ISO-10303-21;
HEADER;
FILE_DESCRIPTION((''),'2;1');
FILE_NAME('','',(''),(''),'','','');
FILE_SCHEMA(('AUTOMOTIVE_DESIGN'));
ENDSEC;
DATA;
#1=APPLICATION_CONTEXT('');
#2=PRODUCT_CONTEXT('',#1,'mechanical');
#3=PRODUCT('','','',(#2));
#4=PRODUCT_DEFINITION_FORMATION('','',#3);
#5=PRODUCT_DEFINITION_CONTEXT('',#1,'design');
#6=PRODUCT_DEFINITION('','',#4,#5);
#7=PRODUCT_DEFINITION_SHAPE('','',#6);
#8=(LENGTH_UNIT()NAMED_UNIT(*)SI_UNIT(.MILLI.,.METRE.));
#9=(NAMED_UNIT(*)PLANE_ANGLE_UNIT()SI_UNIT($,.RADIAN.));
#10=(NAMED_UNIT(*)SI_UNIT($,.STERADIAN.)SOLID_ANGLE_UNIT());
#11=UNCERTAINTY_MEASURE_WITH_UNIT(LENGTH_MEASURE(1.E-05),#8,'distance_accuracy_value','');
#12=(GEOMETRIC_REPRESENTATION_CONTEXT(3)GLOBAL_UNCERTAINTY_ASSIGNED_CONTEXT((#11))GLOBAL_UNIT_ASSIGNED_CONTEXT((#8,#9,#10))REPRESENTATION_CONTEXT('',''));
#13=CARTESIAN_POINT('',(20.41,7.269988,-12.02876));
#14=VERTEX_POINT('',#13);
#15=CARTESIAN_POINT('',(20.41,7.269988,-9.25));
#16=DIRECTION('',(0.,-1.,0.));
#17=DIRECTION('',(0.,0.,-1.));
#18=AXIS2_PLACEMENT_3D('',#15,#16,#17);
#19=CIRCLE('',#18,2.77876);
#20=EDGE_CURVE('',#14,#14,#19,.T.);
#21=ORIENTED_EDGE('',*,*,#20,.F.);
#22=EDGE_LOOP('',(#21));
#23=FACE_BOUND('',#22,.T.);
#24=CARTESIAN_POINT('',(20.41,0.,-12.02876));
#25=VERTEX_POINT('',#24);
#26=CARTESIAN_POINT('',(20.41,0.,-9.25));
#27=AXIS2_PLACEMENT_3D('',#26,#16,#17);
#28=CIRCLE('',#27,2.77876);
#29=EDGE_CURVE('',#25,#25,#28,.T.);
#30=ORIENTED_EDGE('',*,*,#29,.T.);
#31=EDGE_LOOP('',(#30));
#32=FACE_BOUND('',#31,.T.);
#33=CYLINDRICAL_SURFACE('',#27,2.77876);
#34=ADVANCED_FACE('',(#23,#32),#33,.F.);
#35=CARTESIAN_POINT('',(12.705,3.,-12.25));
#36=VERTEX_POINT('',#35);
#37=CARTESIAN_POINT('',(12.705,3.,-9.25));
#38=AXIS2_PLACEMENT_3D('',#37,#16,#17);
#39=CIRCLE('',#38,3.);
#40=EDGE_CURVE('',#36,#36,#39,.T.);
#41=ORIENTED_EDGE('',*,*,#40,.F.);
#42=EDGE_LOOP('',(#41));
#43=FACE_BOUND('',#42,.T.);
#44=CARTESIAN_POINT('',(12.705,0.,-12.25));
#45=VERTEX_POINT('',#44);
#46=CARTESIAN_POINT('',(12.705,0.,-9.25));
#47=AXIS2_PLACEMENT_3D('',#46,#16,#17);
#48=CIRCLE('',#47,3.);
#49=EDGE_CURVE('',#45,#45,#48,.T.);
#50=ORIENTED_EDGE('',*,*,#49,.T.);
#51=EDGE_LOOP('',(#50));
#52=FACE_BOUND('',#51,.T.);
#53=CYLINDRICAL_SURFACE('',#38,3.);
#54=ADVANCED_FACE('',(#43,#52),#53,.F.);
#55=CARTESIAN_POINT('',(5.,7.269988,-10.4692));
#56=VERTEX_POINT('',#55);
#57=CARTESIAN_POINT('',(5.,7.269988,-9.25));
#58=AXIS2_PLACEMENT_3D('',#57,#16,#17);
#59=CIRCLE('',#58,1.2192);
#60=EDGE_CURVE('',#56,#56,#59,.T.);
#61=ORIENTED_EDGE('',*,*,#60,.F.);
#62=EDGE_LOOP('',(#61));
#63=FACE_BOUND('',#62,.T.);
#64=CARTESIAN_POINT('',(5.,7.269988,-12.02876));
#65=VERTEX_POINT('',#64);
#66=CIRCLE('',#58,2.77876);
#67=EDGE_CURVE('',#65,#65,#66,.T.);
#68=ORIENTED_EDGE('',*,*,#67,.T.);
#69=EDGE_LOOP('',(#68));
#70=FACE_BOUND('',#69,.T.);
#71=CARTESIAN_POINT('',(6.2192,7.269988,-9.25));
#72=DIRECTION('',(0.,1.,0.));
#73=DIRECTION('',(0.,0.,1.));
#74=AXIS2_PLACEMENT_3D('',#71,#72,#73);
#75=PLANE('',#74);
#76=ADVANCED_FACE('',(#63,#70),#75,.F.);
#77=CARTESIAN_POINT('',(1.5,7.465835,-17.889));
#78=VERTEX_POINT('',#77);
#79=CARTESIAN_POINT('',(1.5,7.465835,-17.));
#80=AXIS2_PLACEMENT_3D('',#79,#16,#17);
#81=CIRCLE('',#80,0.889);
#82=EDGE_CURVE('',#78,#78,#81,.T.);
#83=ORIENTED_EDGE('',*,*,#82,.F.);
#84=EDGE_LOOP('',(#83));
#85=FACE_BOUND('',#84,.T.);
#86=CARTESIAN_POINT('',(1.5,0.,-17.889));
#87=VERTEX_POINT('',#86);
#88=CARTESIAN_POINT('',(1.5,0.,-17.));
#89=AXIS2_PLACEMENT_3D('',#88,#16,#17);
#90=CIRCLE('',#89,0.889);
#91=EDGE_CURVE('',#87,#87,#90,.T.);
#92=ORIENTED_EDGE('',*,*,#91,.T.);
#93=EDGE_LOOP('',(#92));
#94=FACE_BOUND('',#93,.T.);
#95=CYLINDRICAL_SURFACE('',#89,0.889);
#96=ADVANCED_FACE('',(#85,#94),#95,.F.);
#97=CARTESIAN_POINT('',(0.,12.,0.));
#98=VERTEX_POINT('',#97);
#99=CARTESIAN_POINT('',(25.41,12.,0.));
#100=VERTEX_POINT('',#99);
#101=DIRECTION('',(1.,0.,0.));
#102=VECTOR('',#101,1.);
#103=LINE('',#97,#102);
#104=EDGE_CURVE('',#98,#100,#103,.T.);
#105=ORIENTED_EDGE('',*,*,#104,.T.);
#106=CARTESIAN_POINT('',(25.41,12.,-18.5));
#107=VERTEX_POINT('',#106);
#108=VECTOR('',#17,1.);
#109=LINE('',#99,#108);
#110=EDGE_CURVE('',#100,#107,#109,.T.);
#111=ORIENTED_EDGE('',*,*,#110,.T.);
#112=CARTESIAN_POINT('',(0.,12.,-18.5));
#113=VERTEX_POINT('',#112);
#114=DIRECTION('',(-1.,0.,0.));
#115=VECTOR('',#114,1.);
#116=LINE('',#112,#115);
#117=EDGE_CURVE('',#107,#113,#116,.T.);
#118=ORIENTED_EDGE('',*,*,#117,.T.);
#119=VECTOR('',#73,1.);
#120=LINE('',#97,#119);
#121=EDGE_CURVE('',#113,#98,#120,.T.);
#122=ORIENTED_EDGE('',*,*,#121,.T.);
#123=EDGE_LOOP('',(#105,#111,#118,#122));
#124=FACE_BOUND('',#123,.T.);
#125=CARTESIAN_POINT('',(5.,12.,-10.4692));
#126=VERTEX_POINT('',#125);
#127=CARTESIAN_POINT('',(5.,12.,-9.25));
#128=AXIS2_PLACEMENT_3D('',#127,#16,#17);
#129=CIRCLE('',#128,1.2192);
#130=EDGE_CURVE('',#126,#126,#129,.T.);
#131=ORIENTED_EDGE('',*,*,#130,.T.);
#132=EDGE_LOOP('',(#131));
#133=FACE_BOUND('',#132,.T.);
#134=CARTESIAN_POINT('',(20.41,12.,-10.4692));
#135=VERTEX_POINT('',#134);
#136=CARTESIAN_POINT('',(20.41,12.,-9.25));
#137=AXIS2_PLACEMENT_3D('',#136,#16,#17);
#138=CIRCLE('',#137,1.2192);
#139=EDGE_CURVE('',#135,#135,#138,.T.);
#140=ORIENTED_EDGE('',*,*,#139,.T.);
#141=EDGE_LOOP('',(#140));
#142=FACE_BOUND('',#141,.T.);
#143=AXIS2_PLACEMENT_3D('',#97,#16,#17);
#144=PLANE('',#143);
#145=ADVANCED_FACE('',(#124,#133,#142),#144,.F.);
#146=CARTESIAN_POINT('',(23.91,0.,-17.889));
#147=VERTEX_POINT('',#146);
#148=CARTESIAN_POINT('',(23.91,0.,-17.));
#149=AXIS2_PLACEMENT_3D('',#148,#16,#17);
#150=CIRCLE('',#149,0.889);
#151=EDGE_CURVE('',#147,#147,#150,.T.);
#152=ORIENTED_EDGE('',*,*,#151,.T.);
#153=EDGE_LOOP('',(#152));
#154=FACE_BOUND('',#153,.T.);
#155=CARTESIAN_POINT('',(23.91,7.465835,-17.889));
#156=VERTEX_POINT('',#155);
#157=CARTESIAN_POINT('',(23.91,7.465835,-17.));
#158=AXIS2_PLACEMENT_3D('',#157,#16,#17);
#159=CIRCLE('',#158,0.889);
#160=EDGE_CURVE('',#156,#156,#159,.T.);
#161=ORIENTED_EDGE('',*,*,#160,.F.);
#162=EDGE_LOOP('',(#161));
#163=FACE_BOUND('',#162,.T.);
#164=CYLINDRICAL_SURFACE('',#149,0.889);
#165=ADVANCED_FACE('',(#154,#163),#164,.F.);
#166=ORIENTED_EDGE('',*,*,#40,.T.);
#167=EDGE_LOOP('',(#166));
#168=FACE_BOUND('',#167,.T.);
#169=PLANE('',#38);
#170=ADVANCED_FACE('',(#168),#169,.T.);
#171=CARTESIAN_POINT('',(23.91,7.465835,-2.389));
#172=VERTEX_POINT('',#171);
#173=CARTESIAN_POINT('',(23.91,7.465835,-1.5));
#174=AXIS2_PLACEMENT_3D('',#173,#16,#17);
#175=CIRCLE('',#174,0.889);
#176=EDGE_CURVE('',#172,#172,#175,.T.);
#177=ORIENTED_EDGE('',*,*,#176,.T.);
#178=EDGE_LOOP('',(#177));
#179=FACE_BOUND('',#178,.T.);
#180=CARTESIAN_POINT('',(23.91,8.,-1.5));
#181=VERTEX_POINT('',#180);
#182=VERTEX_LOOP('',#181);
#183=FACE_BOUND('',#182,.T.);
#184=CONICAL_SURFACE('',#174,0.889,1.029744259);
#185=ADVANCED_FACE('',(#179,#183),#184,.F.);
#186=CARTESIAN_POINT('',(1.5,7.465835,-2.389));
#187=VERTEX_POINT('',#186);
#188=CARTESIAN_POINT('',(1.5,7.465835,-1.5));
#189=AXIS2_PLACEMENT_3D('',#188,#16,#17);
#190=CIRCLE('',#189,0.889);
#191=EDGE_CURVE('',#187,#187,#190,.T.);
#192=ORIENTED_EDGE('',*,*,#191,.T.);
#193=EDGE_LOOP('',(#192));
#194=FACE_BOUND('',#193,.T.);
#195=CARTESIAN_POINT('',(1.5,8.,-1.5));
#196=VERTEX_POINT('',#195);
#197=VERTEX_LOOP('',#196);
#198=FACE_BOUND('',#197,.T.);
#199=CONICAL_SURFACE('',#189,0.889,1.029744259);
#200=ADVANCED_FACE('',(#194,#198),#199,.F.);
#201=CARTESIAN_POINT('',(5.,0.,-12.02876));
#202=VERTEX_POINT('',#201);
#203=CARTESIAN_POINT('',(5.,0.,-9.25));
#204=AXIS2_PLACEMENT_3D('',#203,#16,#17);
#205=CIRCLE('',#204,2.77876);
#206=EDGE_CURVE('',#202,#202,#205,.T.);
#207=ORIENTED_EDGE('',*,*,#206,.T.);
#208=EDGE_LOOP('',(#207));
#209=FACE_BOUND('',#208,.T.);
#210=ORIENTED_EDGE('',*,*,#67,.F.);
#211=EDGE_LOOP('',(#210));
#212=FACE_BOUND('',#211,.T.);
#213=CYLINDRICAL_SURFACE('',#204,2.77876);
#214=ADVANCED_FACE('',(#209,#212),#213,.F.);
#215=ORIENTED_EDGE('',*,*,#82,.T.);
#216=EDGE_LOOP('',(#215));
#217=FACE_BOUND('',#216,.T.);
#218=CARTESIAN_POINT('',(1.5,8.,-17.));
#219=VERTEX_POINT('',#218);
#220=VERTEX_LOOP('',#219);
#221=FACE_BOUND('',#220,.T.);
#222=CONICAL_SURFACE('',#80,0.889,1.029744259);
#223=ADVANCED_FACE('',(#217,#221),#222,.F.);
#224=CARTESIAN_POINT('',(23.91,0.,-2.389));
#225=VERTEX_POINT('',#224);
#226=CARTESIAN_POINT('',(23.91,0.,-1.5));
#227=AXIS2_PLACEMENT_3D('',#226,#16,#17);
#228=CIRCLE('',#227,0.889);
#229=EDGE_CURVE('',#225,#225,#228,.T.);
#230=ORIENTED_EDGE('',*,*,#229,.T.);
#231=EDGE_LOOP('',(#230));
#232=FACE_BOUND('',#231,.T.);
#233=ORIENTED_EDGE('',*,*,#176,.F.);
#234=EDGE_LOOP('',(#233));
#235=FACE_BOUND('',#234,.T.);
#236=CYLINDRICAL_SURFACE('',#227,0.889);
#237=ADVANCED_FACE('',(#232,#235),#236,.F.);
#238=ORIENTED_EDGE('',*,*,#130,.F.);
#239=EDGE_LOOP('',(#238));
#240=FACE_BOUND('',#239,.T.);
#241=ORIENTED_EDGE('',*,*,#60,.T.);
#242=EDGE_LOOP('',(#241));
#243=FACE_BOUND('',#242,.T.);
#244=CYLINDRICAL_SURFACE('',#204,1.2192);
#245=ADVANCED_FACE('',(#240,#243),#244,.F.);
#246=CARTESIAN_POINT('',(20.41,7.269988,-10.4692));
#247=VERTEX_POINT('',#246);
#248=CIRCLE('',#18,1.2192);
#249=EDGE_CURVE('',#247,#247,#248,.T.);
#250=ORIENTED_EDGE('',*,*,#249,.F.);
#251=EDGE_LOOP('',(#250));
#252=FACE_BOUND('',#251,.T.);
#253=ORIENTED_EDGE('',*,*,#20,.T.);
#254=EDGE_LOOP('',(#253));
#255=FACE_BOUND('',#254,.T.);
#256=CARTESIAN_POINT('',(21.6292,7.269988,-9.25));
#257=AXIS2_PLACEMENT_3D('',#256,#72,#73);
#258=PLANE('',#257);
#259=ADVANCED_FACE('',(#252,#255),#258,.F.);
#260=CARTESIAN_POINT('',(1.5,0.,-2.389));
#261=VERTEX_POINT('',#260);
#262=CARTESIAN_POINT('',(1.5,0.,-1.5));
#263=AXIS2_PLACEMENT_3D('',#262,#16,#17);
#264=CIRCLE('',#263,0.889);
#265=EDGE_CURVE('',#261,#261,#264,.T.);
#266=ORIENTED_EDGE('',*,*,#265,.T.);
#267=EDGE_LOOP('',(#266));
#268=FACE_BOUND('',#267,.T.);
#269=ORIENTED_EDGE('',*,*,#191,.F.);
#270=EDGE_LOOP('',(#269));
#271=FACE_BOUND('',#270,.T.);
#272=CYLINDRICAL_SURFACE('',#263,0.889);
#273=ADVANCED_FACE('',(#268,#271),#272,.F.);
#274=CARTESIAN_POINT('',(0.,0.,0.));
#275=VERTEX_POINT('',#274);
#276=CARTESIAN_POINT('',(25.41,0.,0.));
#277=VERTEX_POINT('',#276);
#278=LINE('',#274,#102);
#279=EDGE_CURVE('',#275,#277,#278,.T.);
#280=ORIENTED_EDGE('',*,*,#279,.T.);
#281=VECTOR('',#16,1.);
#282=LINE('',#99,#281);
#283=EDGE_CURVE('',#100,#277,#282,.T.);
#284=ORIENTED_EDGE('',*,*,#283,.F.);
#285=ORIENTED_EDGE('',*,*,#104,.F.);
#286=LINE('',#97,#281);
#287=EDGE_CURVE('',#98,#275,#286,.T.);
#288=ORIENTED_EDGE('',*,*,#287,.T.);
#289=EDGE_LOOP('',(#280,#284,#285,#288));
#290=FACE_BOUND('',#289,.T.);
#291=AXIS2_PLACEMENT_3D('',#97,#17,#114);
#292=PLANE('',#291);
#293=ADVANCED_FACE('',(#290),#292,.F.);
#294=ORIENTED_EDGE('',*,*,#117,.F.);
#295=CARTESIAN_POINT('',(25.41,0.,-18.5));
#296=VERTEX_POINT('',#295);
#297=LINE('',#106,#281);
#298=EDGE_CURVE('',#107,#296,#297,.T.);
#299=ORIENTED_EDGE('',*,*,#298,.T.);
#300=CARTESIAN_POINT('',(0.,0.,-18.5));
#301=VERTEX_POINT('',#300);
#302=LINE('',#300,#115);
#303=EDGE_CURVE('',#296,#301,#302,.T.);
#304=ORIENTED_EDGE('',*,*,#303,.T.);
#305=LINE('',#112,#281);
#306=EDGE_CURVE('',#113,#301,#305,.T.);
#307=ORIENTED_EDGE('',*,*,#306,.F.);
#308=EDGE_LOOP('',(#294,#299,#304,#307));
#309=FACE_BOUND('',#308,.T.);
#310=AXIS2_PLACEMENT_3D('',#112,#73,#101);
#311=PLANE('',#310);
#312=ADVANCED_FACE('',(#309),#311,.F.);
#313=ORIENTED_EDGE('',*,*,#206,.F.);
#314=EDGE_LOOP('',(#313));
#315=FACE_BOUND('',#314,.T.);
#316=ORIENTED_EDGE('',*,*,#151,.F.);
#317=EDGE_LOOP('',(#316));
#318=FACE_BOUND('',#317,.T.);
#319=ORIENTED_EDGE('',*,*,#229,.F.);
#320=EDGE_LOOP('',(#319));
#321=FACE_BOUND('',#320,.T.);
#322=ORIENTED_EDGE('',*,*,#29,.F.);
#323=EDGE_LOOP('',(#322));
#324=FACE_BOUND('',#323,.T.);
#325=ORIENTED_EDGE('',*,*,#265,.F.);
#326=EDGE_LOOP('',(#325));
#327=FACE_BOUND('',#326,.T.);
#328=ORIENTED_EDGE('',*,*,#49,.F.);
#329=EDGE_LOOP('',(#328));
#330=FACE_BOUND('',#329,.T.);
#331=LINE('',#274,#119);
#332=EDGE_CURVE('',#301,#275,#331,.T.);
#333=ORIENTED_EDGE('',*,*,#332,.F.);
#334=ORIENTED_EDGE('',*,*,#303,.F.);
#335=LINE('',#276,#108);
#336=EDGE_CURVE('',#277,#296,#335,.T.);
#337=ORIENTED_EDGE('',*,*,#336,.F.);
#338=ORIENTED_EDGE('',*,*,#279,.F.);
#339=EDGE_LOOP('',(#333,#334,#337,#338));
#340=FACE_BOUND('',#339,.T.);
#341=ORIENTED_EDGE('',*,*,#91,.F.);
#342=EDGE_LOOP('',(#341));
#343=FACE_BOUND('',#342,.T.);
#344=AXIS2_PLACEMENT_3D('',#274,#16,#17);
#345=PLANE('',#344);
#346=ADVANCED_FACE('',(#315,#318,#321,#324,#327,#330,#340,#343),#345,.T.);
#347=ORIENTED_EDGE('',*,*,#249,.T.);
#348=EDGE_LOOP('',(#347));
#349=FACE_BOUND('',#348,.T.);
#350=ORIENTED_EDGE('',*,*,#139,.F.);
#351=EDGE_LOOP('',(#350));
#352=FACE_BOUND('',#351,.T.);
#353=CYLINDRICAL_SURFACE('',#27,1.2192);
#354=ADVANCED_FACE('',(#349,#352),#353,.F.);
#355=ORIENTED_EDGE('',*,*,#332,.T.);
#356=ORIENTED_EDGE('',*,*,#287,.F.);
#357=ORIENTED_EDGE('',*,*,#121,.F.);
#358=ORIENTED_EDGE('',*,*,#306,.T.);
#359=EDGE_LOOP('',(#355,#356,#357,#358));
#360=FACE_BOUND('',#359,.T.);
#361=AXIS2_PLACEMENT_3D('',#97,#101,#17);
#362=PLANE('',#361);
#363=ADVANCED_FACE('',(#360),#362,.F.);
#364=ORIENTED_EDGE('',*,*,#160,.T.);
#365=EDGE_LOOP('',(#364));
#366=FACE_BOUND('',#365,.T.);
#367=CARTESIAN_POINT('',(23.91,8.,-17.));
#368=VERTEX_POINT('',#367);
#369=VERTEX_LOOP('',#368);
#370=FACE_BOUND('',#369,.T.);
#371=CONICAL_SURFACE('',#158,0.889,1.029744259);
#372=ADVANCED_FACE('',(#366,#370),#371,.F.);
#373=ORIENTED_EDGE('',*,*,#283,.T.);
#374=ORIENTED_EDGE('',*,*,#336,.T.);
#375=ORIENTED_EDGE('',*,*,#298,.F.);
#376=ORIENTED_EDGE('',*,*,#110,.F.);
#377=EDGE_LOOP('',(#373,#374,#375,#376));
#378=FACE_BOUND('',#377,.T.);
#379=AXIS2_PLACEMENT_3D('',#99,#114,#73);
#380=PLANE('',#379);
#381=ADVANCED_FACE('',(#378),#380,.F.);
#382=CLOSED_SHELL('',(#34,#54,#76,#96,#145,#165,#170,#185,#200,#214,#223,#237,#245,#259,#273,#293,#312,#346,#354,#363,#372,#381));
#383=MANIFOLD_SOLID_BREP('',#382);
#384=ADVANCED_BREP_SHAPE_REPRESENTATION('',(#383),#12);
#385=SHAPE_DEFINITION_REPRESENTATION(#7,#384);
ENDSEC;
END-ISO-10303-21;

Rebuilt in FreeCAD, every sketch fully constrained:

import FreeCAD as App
import Part
import Sketcher


def add_polygon(sketch, points):
    """Adds a closed chain of lines whose ends are joined by coincident constraints."""
    first, n = sketch.GeometryCount, len(points)
    for a, b in zip(points, points[1:] + points[:1]):
        sketch.addGeometry(Part.LineSegment(App.Vector(*a, 0), App.Vector(*b, 0)), False)
    for i in range(n):
        sketch.addConstraint(Sketcher.Constraint("Coincident", first + i, 2, first + (i + 1) % n, 1))

doc = App.newDocument("Part")
body = doc.addObject("PartDesign::Body", "Body")

# Sketch on XZ plane
sketch1 = doc.addObject("Sketcher::SketchObject", "Sketch")
body.addObject(sketch1)
sketch1.AttachmentSupport = (doc.XZ_Plane, [""])
sketch1.MapMode = "FlatFace"
add_polygon(sketch1, [(0, -18), (0, 0), (25, 0), (25, -18)])  # lines 0-3
sketch1.addConstraint(Sketcher.Constraint("Vertical", 0))
sketch1.addConstraint(Sketcher.Constraint("Horizontal", 1))
sketch1.addConstraint(Sketcher.Constraint("Vertical", 2))
sketch1.addConstraint(Sketcher.Constraint("Horizontal", 3))
sketch1.addConstraint(Sketcher.Constraint("Coincident", 0, 2, -1, 1))
sketch1.addConstraint(Sketcher.Constraint("DistanceY", 0, 1, 0, 2, 18.5))
sketch1.addConstraint(Sketcher.Constraint("DistanceX", 1, 1, 1, 2, 25.41))
pad1 = doc.addObject("PartDesign::Pad", "Pad")
body.addObject(pad1)
pad1.Profile = sketch1
pad1.Length = 12
pad1.Reversed = True

# Sketch on XZ plane
sketch2 = doc.addObject("Sketcher::SketchObject", "Sketch001")
body.addObject(sketch2)
sketch2.AttachmentSupport = (doc.XZ_Plane, [""])
sketch2.MapMode = "FlatFace"
sketch2.addGeometry(Part.Circle(App.Vector(23.9, -17, 0), App.Vector(0, 0, 1), 0.9), False)
sketch2.addGeometry(Part.Circle(App.Vector(23.9, -1.5, 0), App.Vector(0, 0, 1), 0.9), False)
sketch2.addGeometry(Part.Circle(App.Vector(1.5, -1.5, 0), App.Vector(0, 0, 1), 0.9), False)
sketch2.addGeometry(Part.Circle(App.Vector(1.5, -17, 0), App.Vector(0, 0, 1), 0.9), False)
sketch2.addConstraint(Sketcher.Constraint("Equal", 0, 1))
sketch2.addConstraint(Sketcher.Constraint("Equal", 1, 2))
sketch2.addConstraint(Sketcher.Constraint("Equal", 2, 3))
sketch2.addConstraint(Sketcher.Constraint("Horizontal", 1, 3, 2, 3))
sketch2.addConstraint(Sketcher.Constraint("Horizontal", 0, 3, 3, 3))
sketch2.addConstraint(Sketcher.Constraint("Vertical", 0, 3, 1, 3))
sketch2.addConstraint(Sketcher.Constraint("Vertical", 2, 3, 3, 3))
sketch2.addConstraint(Sketcher.Constraint("Diameter", 0, 1.778))
sketch2.addConstraint(Sketcher.Constraint("DistanceY", 0, 3, -1, 1, 17.0))
sketch2.addConstraint(Sketcher.Constraint("DistanceY", 1, 3, -1, 1, 1.5))
sketch2.addConstraint(Sketcher.Constraint("DistanceX", -1, 1, 2, 3, 1.5))
sketch2.addConstraint(Sketcher.Constraint("DistanceX", -1, 1, 0, 3, 23.91))
doc.recompute()
hole = doc.addObject("PartDesign::Hole", "Hole")
body.addObject(hole)
hole.Profile = sketch2
hole.ThreadType = "None"
hole.Diameter = 1.778
hole.DepthType = "Dimension"
hole.Depth = 7.465835
hole.DrillPoint = "Angled"
hole.DrillPointAngle = 118

# Sketch on XZ plane
sketch3 = doc.addObject("Sketcher::SketchObject", "Sketch002")
body.addObject(sketch3)
sketch3.AttachmentSupport = (doc.XZ_Plane, [""])
sketch3.MapMode = "FlatFace"
sketch3.addGeometry(Part.Circle(App.Vector(12.7, -9.2, 0), App.Vector(0, 0, 1), 3), False)
sketch3.addConstraint(Sketcher.Constraint("Diameter", 0, 6.0))
sketch3.addConstraint(Sketcher.Constraint("DistanceY", 0, 3, -1, 1, 9.25))
sketch3.addConstraint(Sketcher.Constraint("DistanceX", -1, 1, 0, 3, 12.705))
pocket1 = doc.addObject("PartDesign::Pocket", "Pocket")
body.addObject(pocket1)
pocket1.Profile = sketch3
pocket1.Length = 3

# Sketch on XZ plane
sketch4 = doc.addObject("Sketcher::SketchObject", "Sketch003")
body.addObject(sketch4)
sketch4.AttachmentSupport = (doc.XZ_Plane, [""])
sketch4.MapMode = "FlatFace"
sketch4.addGeometry(Part.Circle(App.Vector(20.4, -9.2, 0), App.Vector(0, 0, 1), 1.2), False)
sketch4.addGeometry(Part.Circle(App.Vector(5, -9.2, 0), App.Vector(0, 0, 1), 1.2), False)
sketch4.addConstraint(Sketcher.Constraint("Equal", 0, 1))
sketch4.addConstraint(Sketcher.Constraint("Horizontal", 0, 3, 1, 3))
sketch4.addConstraint(Sketcher.Constraint("DistanceX", -1, 1, 1, 3, 5.0))
sketch4.addConstraint(Sketcher.Constraint("Diameter", 0, 2.4384))
sketch4.addConstraint(Sketcher.Constraint("DistanceX", -1, 1, 0, 3, 20.41))
sketch4.addConstraint(Sketcher.Constraint("DistanceY", 0, 3, -1, 1, 9.25))
doc.recompute()
hole2 = doc.addObject("PartDesign::Hole", "Hole001")
body.addObject(hole2)
hole2.Profile = sketch4
hole2.ThreadType = "None"
hole2.Diameter = 2.4384
hole2.DepthType = "ThroughAll"
hole2.HoleCutType = "Counterbore"
hole2.HoleCutDiameter = 5.55752
hole2.HoleCutDepth = 7.269988

doc.recompute()
